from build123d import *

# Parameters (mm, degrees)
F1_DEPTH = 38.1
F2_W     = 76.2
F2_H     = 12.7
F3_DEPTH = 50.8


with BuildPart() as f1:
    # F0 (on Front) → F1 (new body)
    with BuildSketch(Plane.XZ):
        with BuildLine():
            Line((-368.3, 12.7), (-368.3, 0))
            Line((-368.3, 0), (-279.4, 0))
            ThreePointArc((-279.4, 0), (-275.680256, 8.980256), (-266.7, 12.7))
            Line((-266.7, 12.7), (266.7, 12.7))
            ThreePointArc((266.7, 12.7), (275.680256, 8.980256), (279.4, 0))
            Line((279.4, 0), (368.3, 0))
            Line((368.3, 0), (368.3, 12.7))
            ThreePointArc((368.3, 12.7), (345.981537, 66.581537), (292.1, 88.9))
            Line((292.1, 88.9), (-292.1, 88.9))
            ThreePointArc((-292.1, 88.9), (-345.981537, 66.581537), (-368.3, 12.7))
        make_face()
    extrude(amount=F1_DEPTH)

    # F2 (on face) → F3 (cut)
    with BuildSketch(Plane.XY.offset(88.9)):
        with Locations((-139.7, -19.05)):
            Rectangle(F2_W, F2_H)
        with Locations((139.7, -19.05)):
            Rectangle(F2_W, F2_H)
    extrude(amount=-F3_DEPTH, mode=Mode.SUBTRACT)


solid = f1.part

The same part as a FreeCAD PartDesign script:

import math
import FreeCAD as App
import Part
import Sketcher
from FreeCAD import Vector
Q = App.Units.Quantity

doc = App.newDocument("Part")
body = doc.addObject("PartDesign::Body", "Body")

sketch1 = body.newObject("Sketcher::SketchObject", "Sketch")
sketch1.AttachmentSupport = (doc.getObject("XZ_Plane"), [""])
sketch1.MapMode = "FlatFace"
sketch1.addGeometry(Part.LineSegment(Vector(-368, 13, 0), Vector(-368, 0, 0)), False)
sketch1.addGeometry(Part.LineSegment(Vector(-368, 0, 0), Vector(-279, 0, 0)), False)
sketch1.addGeometry(Part.ArcOfCircle(Part.Circle(Vector(-267, 0, 0), Vector(0, 0, 1), 13), math.radians(90), math.radians(180)), False)
sketch1.addGeometry(Part.LineSegment(Vector(-267, 13, 0), Vector(267, 13, 0)), False)
sketch1.addGeometry(Part.ArcOfCircle(Part.Circle(Vector(267, 0, 0), Vector(0, 0, 1), 13), math.radians(0), math.radians(90)), False)
sketch1.addGeometry(Part.LineSegment(Vector(279, 0, 0), Vector(368, 0, 0)), False)
sketch1.addGeometry(Part.LineSegment(Vector(368, 0, 0), Vector(368, 13, 0)), False)
sketch1.addGeometry(Part.ArcOfCircle(Part.Circle(Vector(292, 13, 0), Vector(0, 0, 1), 76), math.radians(0), math.radians(90)), False)
sketch1.addGeometry(Part.LineSegment(Vector(292, 89, 0), Vector(-292, 89, 0)), False)
sketch1.addGeometry(Part.ArcOfCircle(Part.Circle(Vector(-292, 13, 0), Vector(0, 0, 1), 76), math.radians(90), math.radians(180)), False)
sketch1.addConstraint(Sketcher.Constraint("Coincident", 0, 2, 1, 1))
sketch1.addConstraint(Sketcher.Constraint("Coincident", 1, 2, 2, 2))
sketch1.addConstraint(Sketcher.Constraint("Tangent", 2, 1, 3, 1))
sketch1.addConstraint(Sketcher.Constraint("Tangent", 3, 2, 4, 2))
sketch1.addConstraint(Sketcher.Constraint("Coincident", 4, 1, 5, 1))
sketch1.addConstraint(Sketcher.Constraint("Coincident", 5, 2, 6, 1))
sketch1.addConstraint(Sketcher.Constraint("Tangent", 6, 2, 7, 1))
sketch1.addConstraint(Sketcher.Constraint("Tangent", 7, 2, 8, 1))
sketch1.addConstraint(Sketcher.Constraint("Tangent", 8, 2, 9, 1))
sketch1.addConstraint(Sketcher.Constraint("Tangent", 9, 2, 0, 1))
sketch1.addConstraint(Sketcher.Constraint("Vertical", 0))
sketch1.addConstraint(Sketcher.Constraint("Horizontal", 1))
sketch1.addConstraint(Sketcher.Constraint("Horizontal", 3))
sketch1.addConstraint(Sketcher.Constraint("Horizontal", 5))
sketch1.addConstraint(Sketcher.Constraint("Vertical", 6))
sketch1.addConstraint(Sketcher.Constraint("Horizontal", 8))
sketch1.addConstraint(Sketcher.Constraint("Equal", 2, 4))
sketch1.addConstraint(Sketcher.Constraint("Equal", 7, 9))
sketch1.addConstraint(Sketcher.Constraint("Symmetric", 2, 3, 4, 3, -1, 1))
sketch1.addConstraint(Sketcher.Constraint("Symmetric", 0, 2, 5, 2, -1, 1))
sketch1.addConstraint(Sketcher.Constraint("PointOnObject", 0, 2, -1))
sketch1.addConstraint(Sketcher.Constraint("Horizontal", 9, 3, 2, 1))
sketch1.addConstraint(Sketcher.Constraint("Radius", 7, Q("3 in")))
sketch1.addConstraint(Sketcher.Constraint("Radius", 2, Q("0.5 in")))
sketch1.addConstraint(Sketcher.Constraint("DistanceX", 3, 1, 3, 2, Q("21 in")))
sketch1.addConstraint(Sketcher.Constraint("DistanceX", 8, 2, 8, 1, Q("23 in")))
pad1 = body.newObject("PartDesign::Pad", "Pad")
pad1.Profile = sketch1
pad1.Length = Q("1.5 in")

sketch2 = body.newObject("Sketcher::SketchObject", "Sketch001")
sketch2.AttachmentSupport = (doc.getObject("XY_Plane"), [""])
sketch2.MapMode = "FlatFace"
sketch2.AttachmentOffset = App.Placement(Vector(0, 0, 3.5 * 25.4), App.Rotation())
sketch2.addGeometry(Part.LineSegment(Vector(-178, -13, 0), Vector(-178, -25, 0)), False)
sketch2.addGeometry(Part.LineSegment(Vector(-178, -25, 0), Vector(-102, -25, 0)), False)
sketch2.addGeometry(Part.LineSegment(Vector(-102, -25, 0), Vector(-102, -13, 0)), False)
sketch2.addGeometry(Part.LineSegment(Vector(-102, -13, 0), Vector(-178, -13, 0)), False)
sketch2.addGeometry(Part.LineSegment(Vector(102, -13, 0), Vector(102, -25, 0)), False)
sketch2.addGeometry(Part.LineSegment(Vector(102, -25, 0), Vector(178, -25, 0)), False)
sketch2.addGeometry(Part.LineSegment(Vector(178, -25, 0), Vector(178, -13, 0)), False)
sketch2.addGeometry(Part.LineSegment(Vector(178, -13, 0), Vector(102, -13, 0)), False)
sketch2.addConstraint(Sketcher.Constraint("Coincident", 0, 2, 1, 1))
sketch2.addConstraint(Sketcher.Constraint("Coincident", 1, 2, 2, 1))
sketch2.addConstraint(Sketcher.Constraint("Coincident", 2, 2, 3, 1))
sketch2.addConstraint(Sketcher.Constraint("Coincident", 3, 2, 0, 1))
sketch2.addConstraint(Sketcher.Constraint("Coincident", 4, 2, 5, 1))
sketch2.addConstraint(Sketcher.Constraint("Coincident", 5, 2, 6, 1))
sketch2.addConstraint(Sketcher.Constraint("Coincident", 6, 2, 7, 1))
sketch2.addConstraint(Sketcher.Constraint("Coincident", 7, 2, 4, 1))
sketch2.addConstraint(Sketcher.Constraint("Vertical", 0))
sketch2.addConstraint(Sketcher.Constraint("Horizontal", 1))
sketch2.addConstraint(Sketcher.Constraint("Vertical", 2))
sketch2.addConstraint(Sketcher.Constraint("Horizontal", 3))
sketch2.addConstraint(Sketcher.Constraint("Vertical", 4))
sketch2.addConstraint(Sketcher.Constraint("Horizontal", 5))
sketch2.addConstraint(Sketcher.Constraint("Vertical", 6))
sketch2.addConstraint(Sketcher.Constraint("Horizontal", 7))
sketch2.addConstraint(Sketcher.Constraint("Symmetric", 1, 2, 4, 2, -2))
sketch2.addConstraint(Sketcher.Constraint("Symmetric", 3, 2, 6, 2, -2))
sketch2.addConstraint(Sketcher.Constraint("DistanceX", 1, 1, 1, 2, Q("3 in")))
sketch2.addConstraint(Sketcher.Constraint("DistanceY", 0, 2, 0, 1, Q("0.5 in")))
sketch2.addConstraint(Sketcher.Constraint("DistanceX", 0, 2, -1, 1, Q("7 in")))
sketch2.addConstraint(Sketcher.Constraint("DistanceY", 0, 2, -1, 1, Q("1 in")))
pocket1 = body.newObject("PartDesign::Pocket", "Pocket")
pocket1.Profile = sketch2
pocket1.Length = Q("2 in")

doc.recompute()
